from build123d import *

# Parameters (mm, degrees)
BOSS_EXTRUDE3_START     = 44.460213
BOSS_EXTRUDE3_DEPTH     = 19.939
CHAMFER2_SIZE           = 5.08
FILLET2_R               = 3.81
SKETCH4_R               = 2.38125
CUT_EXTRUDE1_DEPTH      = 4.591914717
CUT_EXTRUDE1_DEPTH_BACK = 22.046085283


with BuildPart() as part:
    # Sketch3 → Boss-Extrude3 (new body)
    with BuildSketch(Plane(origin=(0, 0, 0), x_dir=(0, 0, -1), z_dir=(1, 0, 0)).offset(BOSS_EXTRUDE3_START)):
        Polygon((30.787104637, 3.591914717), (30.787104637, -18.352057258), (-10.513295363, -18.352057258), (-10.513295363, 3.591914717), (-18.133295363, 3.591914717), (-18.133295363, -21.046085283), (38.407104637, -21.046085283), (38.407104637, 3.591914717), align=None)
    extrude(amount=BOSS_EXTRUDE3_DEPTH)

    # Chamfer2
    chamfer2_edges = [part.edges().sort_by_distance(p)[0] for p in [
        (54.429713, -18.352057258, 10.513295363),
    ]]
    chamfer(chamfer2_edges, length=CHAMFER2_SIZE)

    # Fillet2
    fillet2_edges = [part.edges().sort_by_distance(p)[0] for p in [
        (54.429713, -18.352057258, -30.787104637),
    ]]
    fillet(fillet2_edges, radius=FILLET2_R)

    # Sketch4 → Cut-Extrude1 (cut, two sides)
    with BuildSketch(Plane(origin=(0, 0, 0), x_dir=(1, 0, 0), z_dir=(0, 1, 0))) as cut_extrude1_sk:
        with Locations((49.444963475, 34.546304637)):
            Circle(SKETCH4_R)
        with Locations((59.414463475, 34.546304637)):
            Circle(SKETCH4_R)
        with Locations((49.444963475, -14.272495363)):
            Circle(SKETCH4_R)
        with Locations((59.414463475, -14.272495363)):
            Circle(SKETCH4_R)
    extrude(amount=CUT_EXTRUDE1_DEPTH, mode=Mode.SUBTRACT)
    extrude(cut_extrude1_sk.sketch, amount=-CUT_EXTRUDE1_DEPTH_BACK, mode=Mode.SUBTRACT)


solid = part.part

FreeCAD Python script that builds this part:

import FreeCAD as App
import Part
import Sketcher
from FreeCAD import Vector
Q = App.Units.Quantity


def edges_at(feature, points):
    """Names of the edges that pass closest to the given points."""
    edges = feature.Shape.Edges
    near = lambda p: min(range(len(edges)), key=lambda i: edges[i].distToShape(Part.Vertex(*p))[0])
    return sorted({f"Edge{near(p) + 1}" for p in points})


def add_polygon(sketch, points):
    """Adds a closed chain of lines whose ends are joined by coincident constraints."""
    first, n = sketch.GeometryCount, len(points)
    for a, b in zip(points, points[1:] + points[:1]):
        sketch.addGeometry(Part.LineSegment(App.Vector(*a, 0), App.Vector(*b, 0)), False)
    for i in range(n):
        sketch.addConstraint(Sketcher.Constraint("Coincident", first + i, 2, first + (i + 1) % n, 1))

doc = App.newDocument("Part")
body = doc.addObject("PartDesign::Body", "Body")

# Sketch on YZ plane
sketch1 = body.newObject("Sketcher::SketchObject", "Sketch")
sketch1.AttachmentSupport = (doc.getObject("YZ_Plane"), [""])
sketch1.MapMode = "FlatFace"
sketch1.AttachmentOffset = App.Placement(Vector(0, 0, 44.460213), App.Rotation())
add_polygon(sketch1, [(4, -31), (-18, -31), (-18, 11), (4, 11), (4, 18), (-21, 18), (-21, -38), (4, -38)])  # lines 0-7
sketch1.addConstraint(Sketcher.Constraint("Horizontal", 0))
sketch1.addConstraint(Sketcher.Constraint("Vertical", 1))
sketch1.addConstraint(Sketcher.Constraint("Horizontal", 2))
sketch1.addConstraint(Sketcher.Constraint("Vertical", 3))
sketch1.addConstraint(Sketcher.Constraint("Horizontal", 4))
sketch1.addConstraint(Sketcher.Constraint("Vertical", 5))
sketch1.addConstraint(Sketcher.Constraint("Horizontal", 6))
sketch1.addConstraint(Sketcher.Constraint("Vertical", 7))
sketch1.addConstraint(Sketcher.Constraint("Vertical", 3, 2, 6, 2))
sketch1.addConstraint(Sketcher.Constraint("Equal", 3, 7))
sketch1.addConstraint(Sketcher.Constraint("DistanceY", 3, 1, 3, 2, Q("0.3 in")))
sketch1.addConstraint(Sketcher.Constraint("DistanceX", 4, 2, 4, 1, Q("0.97 in")))
sketch1.addConstraint(Sketcher.Constraint("DistanceY", 1, 1, 1, 2, Q("1.626 in")))
sketch1.addConstraint(Sketcher.Constraint("DistanceX", 0, 2, 0, 1, 21.943972))
sketch1.addConstraint(Sketcher.Constraint("DistanceX", 0, 2, -1, 1, 18.352057))
sketch1.addConstraint(Sketcher.Constraint("DistanceY", 0, 2, -1, 1, 30.787105))
pad1 = body.newObject("PartDesign::Pad", "Pad")
pad1.Profile = sketch1
pad1.Length = Q("0.785 in")
doc.recompute()

chamfer = body.newObject("PartDesign::Chamfer", "Chamfer")
chamfer.Base = (pad1, edges_at(pad1, [(54.43, -18.352, 10.513)]))
chamfer.Size = Q("0.2 in")
doc.recompute()

fillet = body.newObject("PartDesign::Fillet", "Fillet")
fillet.Base = (chamfer, edges_at(chamfer, [(54.43, -18.352, -30.787)]))
fillet.Radius = Q("0.15 in")

# Sketch on XZ plane
sketch2 = body.newObject("Sketcher::SketchObject", "Sketch001")
sketch2.AttachmentSupport = (doc.getObject("XZ_Plane"), [""])
sketch2.MapMode = "FlatFace"
sketch2.addGeometry(Part.Circle(Vector(49.4, -34.5, 0), Vector(0, 0, 1), 2.4), False)
sketch2.addGeometry(Part.Circle(Vector(59.4, -34.5, 0), Vector(0, 0, 1), 2.4), False)
sketch2.addGeometry(Part.Circle(Vector(49.4, 14.3, 0), Vector(0, 0, 1), 2.4), False)
sketch2.addGeometry(Part.Circle(Vector(59.4, 14.3, 0), Vector(0, 0, 1), 2.4), False)
sketch2.addConstraint(Sketcher.Constraint("Equal", 0, 1))
sketch2.addConstraint(Sketcher.Constraint("Equal", 1, 2))
sketch2.addConstraint(Sketcher.Constraint("Equal", 2, 3))
sketch2.addConstraint(Sketcher.Constraint("Horizontal", 0, 3, 1, 3))
sketch2.addConstraint(Sketcher.Constraint("Horizontal", 2, 3, 3, 3))
sketch2.addConstraint(Sketcher.Constraint("Vertical", 0, 3, 2, 3))
sketch2.addConstraint(Sketcher.Constraint("Vertical", 1, 3, 3, 3))
sketch2.addConstraint(Sketcher.Constraint("Diameter", 0, Q("0.1875 in")))
sketch2.addConstraint(Sketcher.Constraint("DistanceY", 0, 3, 2, 3, Q("1.922 in")))
sketch2.addConstraint(Sketcher.Constraint("DistanceX", 0, 3, 1, 3, Q("0.3925 in")))
sketch2.addConstraint(Sketcher.Constraint("DistanceX", -1, 1, 0, 3, 49.444963))
sketch2.addConstraint(Sketcher.Constraint("DistanceY", 0, 3, -1, 1, 34.546305))
pocket1 = body.newObject("PartDesign::Pocket", "Pocket")
pocket1.Profile = sketch2
pocket1.Type = "ThroughAll"
pocket1.Midplane = True

doc.recompute()
